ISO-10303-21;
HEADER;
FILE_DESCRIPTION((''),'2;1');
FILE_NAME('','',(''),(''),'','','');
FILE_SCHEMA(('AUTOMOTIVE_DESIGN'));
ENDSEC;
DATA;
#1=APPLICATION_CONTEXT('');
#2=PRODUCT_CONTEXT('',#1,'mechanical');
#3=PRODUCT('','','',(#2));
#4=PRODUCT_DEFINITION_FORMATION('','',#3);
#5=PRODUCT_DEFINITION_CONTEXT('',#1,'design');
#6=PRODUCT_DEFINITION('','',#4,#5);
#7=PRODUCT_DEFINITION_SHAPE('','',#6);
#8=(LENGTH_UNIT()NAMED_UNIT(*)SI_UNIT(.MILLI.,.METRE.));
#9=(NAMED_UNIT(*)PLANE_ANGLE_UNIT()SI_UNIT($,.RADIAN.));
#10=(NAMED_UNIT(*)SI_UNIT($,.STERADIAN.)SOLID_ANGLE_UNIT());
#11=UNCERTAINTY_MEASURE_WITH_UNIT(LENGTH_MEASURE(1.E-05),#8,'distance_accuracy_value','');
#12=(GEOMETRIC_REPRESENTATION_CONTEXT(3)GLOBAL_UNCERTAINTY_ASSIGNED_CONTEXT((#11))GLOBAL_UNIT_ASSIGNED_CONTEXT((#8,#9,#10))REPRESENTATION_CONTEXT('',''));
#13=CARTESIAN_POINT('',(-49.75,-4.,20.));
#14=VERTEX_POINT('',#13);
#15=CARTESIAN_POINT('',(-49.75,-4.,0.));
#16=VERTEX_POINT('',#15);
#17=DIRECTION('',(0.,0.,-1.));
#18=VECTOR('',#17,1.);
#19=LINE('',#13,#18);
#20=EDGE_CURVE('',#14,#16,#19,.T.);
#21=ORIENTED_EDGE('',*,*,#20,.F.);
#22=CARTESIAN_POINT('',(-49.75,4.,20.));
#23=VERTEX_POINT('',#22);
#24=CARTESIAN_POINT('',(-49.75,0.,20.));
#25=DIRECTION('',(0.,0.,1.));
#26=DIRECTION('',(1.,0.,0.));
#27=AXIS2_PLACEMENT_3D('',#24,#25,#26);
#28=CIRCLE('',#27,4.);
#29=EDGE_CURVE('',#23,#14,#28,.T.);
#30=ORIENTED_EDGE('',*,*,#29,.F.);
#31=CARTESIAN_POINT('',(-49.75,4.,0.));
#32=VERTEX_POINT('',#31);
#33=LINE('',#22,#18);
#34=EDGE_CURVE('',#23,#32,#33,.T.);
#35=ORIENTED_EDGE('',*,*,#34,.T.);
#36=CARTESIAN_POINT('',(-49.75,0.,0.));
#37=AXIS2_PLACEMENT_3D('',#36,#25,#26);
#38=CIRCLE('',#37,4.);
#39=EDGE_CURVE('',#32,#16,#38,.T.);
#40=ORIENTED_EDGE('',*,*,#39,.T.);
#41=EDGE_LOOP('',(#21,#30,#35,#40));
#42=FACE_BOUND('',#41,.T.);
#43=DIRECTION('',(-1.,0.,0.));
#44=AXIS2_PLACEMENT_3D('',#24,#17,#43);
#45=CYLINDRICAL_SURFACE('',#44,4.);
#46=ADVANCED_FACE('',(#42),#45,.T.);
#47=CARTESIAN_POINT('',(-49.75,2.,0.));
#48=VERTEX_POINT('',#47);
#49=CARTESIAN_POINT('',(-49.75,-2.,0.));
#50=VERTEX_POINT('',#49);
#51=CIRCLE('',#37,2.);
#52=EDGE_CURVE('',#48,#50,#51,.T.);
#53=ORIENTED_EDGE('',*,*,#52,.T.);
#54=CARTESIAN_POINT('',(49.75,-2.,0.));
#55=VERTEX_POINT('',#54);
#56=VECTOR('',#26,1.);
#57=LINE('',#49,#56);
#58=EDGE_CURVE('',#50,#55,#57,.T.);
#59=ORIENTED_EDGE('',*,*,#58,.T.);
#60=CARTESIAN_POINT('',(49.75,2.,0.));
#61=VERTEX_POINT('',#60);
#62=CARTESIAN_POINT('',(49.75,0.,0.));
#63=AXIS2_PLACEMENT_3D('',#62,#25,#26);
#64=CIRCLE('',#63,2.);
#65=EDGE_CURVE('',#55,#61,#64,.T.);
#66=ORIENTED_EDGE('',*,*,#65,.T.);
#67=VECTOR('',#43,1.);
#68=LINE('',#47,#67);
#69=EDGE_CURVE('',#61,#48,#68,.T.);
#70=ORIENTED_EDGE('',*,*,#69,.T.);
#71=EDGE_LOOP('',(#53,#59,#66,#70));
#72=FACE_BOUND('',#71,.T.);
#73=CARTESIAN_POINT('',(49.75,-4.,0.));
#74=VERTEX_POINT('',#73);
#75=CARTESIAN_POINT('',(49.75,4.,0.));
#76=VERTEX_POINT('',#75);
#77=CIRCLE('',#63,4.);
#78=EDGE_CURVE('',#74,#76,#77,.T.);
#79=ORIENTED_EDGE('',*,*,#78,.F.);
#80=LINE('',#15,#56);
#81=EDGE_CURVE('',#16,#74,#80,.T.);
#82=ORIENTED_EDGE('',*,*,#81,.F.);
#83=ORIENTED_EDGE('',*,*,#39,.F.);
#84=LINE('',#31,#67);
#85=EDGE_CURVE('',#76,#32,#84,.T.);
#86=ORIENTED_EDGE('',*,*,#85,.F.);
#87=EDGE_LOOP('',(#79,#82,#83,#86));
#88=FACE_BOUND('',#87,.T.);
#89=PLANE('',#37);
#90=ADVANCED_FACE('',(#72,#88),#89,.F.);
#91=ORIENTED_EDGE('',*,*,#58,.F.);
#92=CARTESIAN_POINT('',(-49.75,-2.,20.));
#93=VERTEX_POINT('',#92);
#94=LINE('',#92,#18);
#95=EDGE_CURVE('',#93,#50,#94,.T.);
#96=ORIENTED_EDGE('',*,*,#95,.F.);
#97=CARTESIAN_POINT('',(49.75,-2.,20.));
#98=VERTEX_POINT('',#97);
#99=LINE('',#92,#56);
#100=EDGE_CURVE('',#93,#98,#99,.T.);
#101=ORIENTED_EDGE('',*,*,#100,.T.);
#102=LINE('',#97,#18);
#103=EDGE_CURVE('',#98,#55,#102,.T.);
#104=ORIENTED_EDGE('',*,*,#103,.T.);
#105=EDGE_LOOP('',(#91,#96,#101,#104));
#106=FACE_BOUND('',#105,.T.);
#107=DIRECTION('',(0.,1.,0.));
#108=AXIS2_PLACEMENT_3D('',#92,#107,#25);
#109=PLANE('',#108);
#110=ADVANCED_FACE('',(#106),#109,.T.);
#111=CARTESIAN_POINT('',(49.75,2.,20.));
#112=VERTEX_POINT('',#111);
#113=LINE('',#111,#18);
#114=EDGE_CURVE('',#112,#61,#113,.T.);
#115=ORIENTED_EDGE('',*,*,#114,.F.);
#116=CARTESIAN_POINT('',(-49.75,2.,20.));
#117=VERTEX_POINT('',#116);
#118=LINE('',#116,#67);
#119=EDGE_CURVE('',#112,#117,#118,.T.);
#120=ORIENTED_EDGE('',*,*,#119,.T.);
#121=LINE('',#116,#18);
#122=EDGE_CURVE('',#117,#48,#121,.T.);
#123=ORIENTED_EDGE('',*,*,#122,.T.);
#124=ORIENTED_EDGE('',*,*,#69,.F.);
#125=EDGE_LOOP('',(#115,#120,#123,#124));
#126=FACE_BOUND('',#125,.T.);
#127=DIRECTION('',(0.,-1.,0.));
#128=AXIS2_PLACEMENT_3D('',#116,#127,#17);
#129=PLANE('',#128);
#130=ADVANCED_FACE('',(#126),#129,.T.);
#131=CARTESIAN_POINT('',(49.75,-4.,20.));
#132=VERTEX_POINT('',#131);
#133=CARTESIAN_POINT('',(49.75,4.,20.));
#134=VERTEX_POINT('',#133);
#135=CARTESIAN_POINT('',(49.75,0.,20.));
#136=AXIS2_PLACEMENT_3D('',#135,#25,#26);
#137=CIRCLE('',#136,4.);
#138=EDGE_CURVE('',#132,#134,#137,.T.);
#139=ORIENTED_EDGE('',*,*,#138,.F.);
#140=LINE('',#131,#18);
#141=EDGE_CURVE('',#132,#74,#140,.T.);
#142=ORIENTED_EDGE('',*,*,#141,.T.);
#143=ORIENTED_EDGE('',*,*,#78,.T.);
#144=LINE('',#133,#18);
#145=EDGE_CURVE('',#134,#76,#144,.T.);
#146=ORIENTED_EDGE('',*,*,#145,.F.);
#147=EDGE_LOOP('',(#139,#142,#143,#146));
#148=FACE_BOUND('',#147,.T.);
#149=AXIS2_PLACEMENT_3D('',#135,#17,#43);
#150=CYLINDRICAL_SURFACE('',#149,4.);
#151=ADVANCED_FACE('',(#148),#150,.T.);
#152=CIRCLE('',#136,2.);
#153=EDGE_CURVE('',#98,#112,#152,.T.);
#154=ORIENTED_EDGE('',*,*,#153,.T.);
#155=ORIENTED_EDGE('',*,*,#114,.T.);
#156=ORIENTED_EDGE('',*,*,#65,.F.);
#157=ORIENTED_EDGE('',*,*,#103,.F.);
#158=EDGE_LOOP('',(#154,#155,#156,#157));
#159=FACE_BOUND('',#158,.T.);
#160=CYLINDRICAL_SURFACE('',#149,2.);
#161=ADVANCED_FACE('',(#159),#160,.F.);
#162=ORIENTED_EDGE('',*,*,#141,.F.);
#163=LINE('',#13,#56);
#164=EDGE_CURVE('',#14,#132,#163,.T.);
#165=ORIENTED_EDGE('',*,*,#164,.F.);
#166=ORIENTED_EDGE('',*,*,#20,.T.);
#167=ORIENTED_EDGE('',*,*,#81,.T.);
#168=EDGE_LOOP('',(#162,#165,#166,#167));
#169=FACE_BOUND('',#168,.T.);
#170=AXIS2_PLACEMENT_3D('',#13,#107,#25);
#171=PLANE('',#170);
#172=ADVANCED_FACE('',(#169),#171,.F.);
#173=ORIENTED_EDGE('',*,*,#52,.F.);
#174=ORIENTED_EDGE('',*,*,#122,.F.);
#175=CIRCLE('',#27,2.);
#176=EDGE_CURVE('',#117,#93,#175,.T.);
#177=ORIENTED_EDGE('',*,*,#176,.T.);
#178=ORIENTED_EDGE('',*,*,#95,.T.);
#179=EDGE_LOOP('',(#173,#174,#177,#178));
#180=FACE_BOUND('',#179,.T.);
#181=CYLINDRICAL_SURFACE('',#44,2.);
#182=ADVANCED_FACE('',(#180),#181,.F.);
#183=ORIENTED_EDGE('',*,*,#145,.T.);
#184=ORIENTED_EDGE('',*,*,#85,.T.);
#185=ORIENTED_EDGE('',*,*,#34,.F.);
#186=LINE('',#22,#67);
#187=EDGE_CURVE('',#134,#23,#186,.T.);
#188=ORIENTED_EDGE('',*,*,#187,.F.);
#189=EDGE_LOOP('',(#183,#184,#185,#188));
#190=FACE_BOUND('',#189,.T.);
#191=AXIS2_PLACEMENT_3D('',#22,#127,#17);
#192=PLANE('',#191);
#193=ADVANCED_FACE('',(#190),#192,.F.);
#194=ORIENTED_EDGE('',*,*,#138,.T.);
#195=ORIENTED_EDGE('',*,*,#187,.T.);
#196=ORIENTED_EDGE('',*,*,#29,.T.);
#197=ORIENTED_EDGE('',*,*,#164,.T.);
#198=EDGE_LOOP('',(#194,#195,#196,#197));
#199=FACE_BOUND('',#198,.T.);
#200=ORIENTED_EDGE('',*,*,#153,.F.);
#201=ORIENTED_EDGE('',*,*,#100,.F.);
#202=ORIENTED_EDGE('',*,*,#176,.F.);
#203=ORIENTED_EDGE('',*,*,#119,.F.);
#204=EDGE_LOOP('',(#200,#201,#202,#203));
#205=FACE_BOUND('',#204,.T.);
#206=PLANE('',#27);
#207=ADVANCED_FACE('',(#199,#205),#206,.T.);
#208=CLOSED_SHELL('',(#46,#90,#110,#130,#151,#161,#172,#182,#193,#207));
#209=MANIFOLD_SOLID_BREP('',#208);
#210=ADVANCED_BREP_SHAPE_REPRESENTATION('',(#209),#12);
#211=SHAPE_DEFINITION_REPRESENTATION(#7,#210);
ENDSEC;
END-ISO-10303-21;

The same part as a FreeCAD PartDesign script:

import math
import FreeCAD as App
import Part
import Sketcher

V = App.Vector

doc = App.newDocument("Part")
body = doc.addObject("PartDesign::Body", "Body")

sketch1 = body.newObject("Sketcher::SketchObject", "Sketch")
sketch1.AttachmentSupport = (doc.getObject("XY_Plane"), [""])
sketch1.MapMode = "FlatFace"
sketch1.addGeometry(Part.LineSegment(V(49.75, 4, 0), V(-49.75, 4, 0)), False)
sketch1.addGeometry(Part.ArcOfCircle(Part.Circle(V(-49.75, 0, 0), V(0, 0, 1), 4), math.radians(90), math.radians(270)), False)
sketch1.addGeometry(Part.LineSegment(V(-49.75, -4, 0), V(49.75, -4, 0)), False)
sketch1.addGeometry(Part.ArcOfCircle(Part.Circle(V(49.75, 0, 0), V(0, 0, 1), 4), math.radians(-90), math.radians(90)), False)
sketch1.addGeometry(Part.LineSegment(V(-49.75, 2, 0), V(49.75, 2, 0)), False)
sketch1.addGeometry(Part.ArcOfCircle(Part.Circle(V(49.75, 0, 0), V(0, 0, 1), 2), math.radians(-90), math.radians(90)), False)
sketch1.addGeometry(Part.LineSegment(V(49.75, -2, 0), V(-49.75, -2, 0)), False)
sketch1.addGeometry(Part.ArcOfCircle(Part.Circle(V(-49.75, 0, 0), V(0, 0, 1), 2), math.radians(90), math.radians(270)), False)
sketch1.addConstraint(Sketcher.Constraint("Tangent", 0, 2, 1, 1))
sketch1.addConstraint(Sketcher.Constraint("Tangent", 1, 2, 2, 1))
sketch1.addConstraint(Sketcher.Constraint("Tangent", 2, 2, 3, 1))
sketch1.addConstraint(Sketcher.Constraint("Tangent", 3, 2, 0, 1))
sketch1.addConstraint(Sketcher.Constraint("Tangent", 4, 2, 5, 2))
sketch1.addConstraint(Sketcher.Constraint("Tangent", 5, 1, 6, 1))
sketch1.addConstraint(Sketcher.Constraint("Tangent", 6, 2, 7, 2))
sketch1.addConstraint(Sketcher.Constraint("Tangent", 7, 1, 4, 1))
sketch1.addConstraint(Sketcher.Constraint("Horizontal", 0))
sketch1.addConstraint(Sketcher.Constraint("Horizontal", 2))
sketch1.addConstraint(Sketcher.Constraint("Horizontal", 4))
sketch1.addConstraint(Sketcher.Constraint("Horizontal", 6))
sketch1.addConstraint(Sketcher.Constraint("Coincident", 5, 3, 3, 3))
sketch1.addConstraint(Sketcher.Constraint("Symmetric", 1, 3, 3, 3, -1, 1))
sketch1.addConstraint(Sketcher.Constraint("Vertical", 7, 3, 0, 2))
sketch1.addConstraint(Sketcher.Constraint("Radius", 1, 4.0))
sketch1.addConstraint(Sketcher.Constraint("Radius", 5, 2.0))
sketch1.addConstraint(Sketcher.Constraint("DistanceX", 0, 2, 0, 1, 99.5))
pad1 = body.newObject("PartDesign::Pad", "Pad")
pad1.Profile = sketch1
pad1.Length = 20

doc.recompute()
